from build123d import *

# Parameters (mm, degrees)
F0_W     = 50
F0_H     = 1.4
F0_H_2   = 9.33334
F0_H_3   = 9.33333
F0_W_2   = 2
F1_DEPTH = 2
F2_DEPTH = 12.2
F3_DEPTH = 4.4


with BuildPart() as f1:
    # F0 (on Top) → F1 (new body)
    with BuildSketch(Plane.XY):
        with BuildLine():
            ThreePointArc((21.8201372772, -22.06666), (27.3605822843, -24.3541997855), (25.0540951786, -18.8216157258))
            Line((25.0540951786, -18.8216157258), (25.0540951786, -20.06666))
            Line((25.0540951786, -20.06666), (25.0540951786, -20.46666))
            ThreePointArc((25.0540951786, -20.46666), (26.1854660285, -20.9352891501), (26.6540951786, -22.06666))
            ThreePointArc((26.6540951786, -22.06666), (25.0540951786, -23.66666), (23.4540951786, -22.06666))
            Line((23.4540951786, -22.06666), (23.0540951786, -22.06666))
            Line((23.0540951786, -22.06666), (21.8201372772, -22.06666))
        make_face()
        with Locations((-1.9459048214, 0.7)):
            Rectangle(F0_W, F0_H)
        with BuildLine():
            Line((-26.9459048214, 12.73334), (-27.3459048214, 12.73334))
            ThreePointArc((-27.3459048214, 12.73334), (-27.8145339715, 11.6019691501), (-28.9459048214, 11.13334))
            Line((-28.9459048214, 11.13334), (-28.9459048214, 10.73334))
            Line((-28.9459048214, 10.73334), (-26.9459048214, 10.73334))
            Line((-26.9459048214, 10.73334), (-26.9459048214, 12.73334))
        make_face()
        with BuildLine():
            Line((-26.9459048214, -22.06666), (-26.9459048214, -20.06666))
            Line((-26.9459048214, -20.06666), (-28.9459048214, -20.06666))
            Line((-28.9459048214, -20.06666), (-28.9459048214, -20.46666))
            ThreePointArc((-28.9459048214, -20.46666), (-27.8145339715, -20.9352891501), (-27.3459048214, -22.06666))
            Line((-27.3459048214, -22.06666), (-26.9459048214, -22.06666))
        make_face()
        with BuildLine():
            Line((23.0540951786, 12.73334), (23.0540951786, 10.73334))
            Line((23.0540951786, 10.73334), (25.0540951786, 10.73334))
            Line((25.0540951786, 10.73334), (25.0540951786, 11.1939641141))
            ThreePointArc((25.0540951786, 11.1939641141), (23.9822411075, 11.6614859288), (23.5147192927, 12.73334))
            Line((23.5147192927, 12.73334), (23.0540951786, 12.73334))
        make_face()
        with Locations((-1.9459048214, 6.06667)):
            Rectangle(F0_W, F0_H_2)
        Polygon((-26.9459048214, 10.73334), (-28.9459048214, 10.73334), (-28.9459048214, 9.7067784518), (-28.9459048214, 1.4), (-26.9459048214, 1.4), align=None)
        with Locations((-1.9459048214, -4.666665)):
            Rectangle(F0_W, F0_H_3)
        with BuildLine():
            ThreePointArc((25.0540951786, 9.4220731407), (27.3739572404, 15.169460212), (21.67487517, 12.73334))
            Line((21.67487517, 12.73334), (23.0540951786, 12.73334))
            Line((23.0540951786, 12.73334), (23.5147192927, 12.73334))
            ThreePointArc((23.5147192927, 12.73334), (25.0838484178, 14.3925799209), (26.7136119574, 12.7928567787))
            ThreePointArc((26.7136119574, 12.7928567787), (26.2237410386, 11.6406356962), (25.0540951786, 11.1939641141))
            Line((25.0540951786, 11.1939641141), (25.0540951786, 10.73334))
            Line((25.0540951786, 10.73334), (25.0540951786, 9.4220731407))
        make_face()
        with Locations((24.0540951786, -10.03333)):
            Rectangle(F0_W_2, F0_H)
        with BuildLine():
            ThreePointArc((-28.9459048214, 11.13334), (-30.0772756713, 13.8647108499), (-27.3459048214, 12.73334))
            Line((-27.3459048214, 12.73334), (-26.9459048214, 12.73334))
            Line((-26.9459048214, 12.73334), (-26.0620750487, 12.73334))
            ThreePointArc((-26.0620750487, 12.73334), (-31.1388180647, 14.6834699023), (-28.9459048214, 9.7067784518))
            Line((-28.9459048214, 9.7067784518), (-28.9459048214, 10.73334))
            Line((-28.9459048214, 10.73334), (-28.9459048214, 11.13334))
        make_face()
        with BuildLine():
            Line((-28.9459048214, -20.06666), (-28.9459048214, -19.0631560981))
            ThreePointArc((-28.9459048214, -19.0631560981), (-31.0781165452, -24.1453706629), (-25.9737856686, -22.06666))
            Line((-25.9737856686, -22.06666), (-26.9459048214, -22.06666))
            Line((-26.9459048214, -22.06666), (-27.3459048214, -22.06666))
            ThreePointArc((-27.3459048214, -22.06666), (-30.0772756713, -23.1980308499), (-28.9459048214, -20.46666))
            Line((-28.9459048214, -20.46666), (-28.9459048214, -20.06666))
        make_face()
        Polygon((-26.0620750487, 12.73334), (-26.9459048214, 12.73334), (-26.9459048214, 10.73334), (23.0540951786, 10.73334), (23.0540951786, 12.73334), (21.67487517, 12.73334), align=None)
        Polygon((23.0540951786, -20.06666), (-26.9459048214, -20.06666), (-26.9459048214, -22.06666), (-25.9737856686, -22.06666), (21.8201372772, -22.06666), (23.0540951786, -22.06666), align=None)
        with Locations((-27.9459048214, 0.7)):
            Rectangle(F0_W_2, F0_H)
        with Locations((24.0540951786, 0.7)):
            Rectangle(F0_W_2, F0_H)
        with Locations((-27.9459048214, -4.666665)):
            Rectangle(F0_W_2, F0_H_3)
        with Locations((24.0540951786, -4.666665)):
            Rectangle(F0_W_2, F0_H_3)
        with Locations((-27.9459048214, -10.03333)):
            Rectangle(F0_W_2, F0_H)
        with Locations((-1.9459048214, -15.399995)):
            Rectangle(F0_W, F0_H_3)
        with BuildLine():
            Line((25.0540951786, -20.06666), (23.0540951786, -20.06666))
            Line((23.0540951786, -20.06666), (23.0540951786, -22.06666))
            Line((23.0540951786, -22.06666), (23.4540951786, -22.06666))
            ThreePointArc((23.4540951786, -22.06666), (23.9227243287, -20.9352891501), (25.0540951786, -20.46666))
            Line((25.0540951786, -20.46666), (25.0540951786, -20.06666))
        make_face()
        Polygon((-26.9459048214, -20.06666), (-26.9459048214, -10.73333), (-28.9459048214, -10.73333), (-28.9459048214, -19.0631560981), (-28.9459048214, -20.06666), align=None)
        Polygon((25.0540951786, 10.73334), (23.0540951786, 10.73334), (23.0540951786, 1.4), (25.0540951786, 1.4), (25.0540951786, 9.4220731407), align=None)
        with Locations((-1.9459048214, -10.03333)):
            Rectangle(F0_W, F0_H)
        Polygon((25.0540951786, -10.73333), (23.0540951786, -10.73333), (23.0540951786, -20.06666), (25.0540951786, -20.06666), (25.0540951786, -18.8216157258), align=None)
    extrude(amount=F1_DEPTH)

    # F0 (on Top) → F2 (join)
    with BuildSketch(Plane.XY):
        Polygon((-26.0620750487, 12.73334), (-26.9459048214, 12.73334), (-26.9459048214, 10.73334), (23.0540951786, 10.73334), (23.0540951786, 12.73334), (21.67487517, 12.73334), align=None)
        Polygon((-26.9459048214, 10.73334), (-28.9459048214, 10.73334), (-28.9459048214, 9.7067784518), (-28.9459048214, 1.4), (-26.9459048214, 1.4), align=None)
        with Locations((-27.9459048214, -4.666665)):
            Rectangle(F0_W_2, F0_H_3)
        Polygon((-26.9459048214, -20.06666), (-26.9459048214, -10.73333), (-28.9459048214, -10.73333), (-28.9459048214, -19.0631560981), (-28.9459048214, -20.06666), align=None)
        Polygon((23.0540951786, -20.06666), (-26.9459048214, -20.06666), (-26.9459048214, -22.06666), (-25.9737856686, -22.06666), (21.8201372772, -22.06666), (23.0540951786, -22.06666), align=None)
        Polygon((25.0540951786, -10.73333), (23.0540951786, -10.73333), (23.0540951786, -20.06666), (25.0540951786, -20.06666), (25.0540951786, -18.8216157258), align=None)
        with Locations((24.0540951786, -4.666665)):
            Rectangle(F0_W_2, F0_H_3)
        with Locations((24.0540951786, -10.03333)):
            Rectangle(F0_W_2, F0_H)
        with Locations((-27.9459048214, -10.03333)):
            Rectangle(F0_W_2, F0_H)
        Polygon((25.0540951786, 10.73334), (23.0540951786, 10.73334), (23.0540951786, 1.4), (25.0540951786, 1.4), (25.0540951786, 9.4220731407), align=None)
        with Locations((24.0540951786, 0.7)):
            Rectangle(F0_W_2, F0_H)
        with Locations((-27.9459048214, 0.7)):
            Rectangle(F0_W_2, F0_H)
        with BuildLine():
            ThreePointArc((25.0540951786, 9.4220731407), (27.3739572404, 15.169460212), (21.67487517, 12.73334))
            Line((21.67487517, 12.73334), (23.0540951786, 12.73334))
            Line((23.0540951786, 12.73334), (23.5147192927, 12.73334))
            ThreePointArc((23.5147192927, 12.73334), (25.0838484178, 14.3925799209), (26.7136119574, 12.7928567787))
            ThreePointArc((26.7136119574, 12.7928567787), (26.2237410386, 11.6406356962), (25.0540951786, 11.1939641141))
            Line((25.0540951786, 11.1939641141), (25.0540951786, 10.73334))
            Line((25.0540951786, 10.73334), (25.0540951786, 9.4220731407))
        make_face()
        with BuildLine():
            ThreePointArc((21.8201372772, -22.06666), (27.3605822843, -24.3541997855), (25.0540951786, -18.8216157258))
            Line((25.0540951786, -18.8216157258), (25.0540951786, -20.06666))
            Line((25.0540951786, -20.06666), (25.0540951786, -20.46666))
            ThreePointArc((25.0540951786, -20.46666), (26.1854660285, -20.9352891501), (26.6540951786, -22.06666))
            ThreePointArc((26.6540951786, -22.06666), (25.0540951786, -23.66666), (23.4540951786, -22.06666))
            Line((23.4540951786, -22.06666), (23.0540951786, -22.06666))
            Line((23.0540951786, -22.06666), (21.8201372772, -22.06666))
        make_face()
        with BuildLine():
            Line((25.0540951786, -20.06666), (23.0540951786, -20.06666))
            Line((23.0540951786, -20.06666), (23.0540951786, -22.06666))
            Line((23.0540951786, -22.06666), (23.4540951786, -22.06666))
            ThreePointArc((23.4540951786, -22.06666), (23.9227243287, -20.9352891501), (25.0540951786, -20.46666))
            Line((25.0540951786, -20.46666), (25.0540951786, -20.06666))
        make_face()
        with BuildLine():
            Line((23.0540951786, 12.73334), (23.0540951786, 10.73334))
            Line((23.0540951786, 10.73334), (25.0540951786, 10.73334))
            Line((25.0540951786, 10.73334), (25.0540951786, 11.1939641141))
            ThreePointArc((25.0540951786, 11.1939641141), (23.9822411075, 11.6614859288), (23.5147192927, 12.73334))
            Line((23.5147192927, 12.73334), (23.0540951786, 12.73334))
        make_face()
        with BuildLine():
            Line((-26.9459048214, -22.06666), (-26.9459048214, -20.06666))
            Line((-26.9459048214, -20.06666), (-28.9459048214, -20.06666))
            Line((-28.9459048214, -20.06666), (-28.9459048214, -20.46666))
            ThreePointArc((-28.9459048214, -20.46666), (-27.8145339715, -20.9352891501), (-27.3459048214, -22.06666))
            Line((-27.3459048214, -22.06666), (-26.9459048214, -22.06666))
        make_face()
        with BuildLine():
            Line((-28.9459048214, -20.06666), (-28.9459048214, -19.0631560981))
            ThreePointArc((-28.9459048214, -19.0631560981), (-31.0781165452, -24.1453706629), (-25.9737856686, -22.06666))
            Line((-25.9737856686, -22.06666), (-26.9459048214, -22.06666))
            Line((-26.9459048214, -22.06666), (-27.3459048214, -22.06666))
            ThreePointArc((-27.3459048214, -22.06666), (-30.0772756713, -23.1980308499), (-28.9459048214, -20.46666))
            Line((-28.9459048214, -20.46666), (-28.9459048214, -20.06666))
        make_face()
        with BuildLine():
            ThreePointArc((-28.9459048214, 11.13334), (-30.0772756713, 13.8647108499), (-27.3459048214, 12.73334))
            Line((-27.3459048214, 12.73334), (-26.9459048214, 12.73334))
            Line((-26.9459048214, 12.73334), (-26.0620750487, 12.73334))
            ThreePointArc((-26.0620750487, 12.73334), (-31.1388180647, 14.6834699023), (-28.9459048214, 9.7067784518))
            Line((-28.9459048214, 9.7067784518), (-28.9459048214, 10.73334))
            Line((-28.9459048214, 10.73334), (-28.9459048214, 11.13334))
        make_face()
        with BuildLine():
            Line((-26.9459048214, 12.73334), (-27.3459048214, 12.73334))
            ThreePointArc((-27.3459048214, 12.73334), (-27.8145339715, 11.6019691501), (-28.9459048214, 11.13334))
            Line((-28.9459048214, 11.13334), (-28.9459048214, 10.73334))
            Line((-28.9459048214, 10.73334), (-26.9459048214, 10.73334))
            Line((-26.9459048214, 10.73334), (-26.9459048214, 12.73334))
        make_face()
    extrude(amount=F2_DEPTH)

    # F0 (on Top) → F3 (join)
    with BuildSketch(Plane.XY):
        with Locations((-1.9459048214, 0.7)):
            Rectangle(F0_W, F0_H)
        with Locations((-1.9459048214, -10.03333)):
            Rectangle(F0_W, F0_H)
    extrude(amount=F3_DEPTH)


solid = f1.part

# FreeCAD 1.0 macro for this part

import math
import FreeCAD as App
import Part
import Sketcher
from FreeCAD import Vector
Q = App.Units.Quantity

doc = App.newDocument("Part")
params = doc.addObject("Spreadsheet::Sheet", "Params")
for row, (alias, value) in enumerate([
    ("sketch1_radius", "1.6 mm"),
    ("pad1_length", "2 mm"),
    ("sketch2_radius", "1.6 mm"),
    ("sketch2_width", "50 mm"),
    ("sketch2_height", "30.8 mm"),
    ("pad2_length", "12.2 mm"),
    ("sketch3_width", "50 mm"),
    ("sketch3_height", "1.4 mm"),
    ("pad3_length", "4.4 mm"),
], start=1):
    params.set(f"A{row}", alias)
    params.set(f"B{row}", "=" + value)
    params.setAlias(f"B{row}", alias)

body = doc.addObject("PartDesign::Body", "Body")

# Sketch on XY plane
sketch1 = body.newObject("Sketcher::SketchObject", "Sketch")
sketch1.AttachmentSupport = (doc.getObject("XY_Plane"), [""])
sketch1.MapMode = "FlatFace"
sketch1.addGeometry(Part.ArcOfCircle(Part.Circle(Vector(25, 12.8, 0), Vector(0, 0, 1), 3.4), math.radians(-90), math.radians(181)), False)
sketch1.addGeometry(Part.LineSegment(Vector(21.7, 12.7, 0), Vector(-26.1, 12.7, 0)), False)
sketch1.addGeometry(Part.ArcOfCircle(Part.Circle(Vector(-29, 12.7, 0), Vector(0, 0, 1), 2.9), math.radians(2), math.radians(271)), False)
sketch1.addGeometry(Part.LineSegment(Vector(-28.9, 9.7, 0), Vector(-28.9, -19.1, 0)), False)
sketch1.addGeometry(Part.ArcOfCircle(Part.Circle(Vector(-29, -22, 0), Vector(0, 0, 1), 3), math.radians(90), math.radians(360)), False)
sketch1.addGeometry(Part.LineSegment(Vector(-26, -22.1, 0), Vector(21.8, -22.1, 0)), False)
sketch1.addGeometry(Part.ArcOfCircle(Part.Circle(Vector(25.1, -22.1, 0), Vector(0, 0, 1), 3.2), math.radians(-180), math.radians(90)), False)
sketch1.addGeometry(Part.LineSegment(Vector(25.1, -18.8, 0), Vector(25.1, 9.4, 0)), False)
sketch1.addGeometry(Part.ArcOfCircle(Part.Circle(Vector(-28.9, -22.1, 0), Vector(0, 0, 1), 1.6), math.radians(90), math.radians(360)), False)
sketch1.addGeometry(Part.ArcOfCircle(Part.Circle(Vector(-28.9, -22.1, 0), Vector(0, 0, 1), 1.6), math.radians(0), math.radians(90)), False)
sketch1.addGeometry(Part.ArcOfCircle(Part.Circle(Vector(25.1, -22.1, 0), Vector(0, 0, 1), 1.6), math.radians(0), math.radians(90)), False)
sketch1.addGeometry(Part.ArcOfCircle(Part.Circle(Vector(25.1, -22.1, 0), Vector(0, 0, 1), 1.6), math.radians(180), math.radians(360)), False)
sketch1.addGeometry(Part.ArcOfCircle(Part.Circle(Vector(25.1, -22.1, 0), Vector(0, 0, 1), 1.6), math.radians(90), math.radians(180)), False)
sketch1.addGeometry(Part.ArcOfCircle(Part.Circle(Vector(-28.9, 12.7, 0), Vector(0, 0, 1), 1.6), math.radians(-90), math.radians(0)), False)
sketch1.addGeometry(Part.ArcOfCircle(Part.Circle(Vector(-28.9, 12.7, 0), Vector(0, 0, 1), 1.6), math.radians(0), math.radians(270)), False)
sketch1.addGeometry(Part.ArcOfCircle(Part.Circle(Vector(25.1, 12.8, 0), Vector(0, 0, 1), 1.6), math.radians(0), math.radians(182)), False)
sketch1.addGeometry(Part.ArcOfCircle(Part.Circle(Vector(25.1, 12.8, 0), Vector(0, 0, 1), 1.6), math.radians(-92), math.radians(0)), False)
sketch1.addGeometry(Part.ArcOfCircle(Part.Circle(Vector(25.1, 12.8, 0), Vector(0, 0, 1), 1.6), math.radians(-178), math.radians(-92)), False)
sketch1.addConstraint(Sketcher.Constraint("Coincident", 0, 2, 1, 1))
sketch1.addConstraint(Sketcher.Constraint("Coincident", 1, 2, 2, 1))
sketch1.addConstraint(Sketcher.Constraint("Coincident", 2, 2, 3, 1))
sketch1.addConstraint(Sketcher.Constraint("Coincident", 3, 2, 4, 1))
sketch1.addConstraint(Sketcher.Constraint("Coincident", 4, 2, 5, 1))
sketch1.addConstraint(Sketcher.Constraint("Coincident", 5, 2, 6, 1))
sketch1.addConstraint(Sketcher.Constraint("Coincident", 6, 2, 7, 1))
sketch1.addConstraint(Sketcher.Constraint("Coincident", 7, 2, 0, 1))
sketch1.addConstraint(Sketcher.Constraint("Tangent", 8, 1, 9, 2))
sketch1.addConstraint(Sketcher.Constraint("Coincident", 9, 1, 8, 2))
sketch1.addConstraint(Sketcher.Constraint("Tangent", 10, 1, 11, 2))
sketch1.addConstraint(Sketcher.Constraint("Tangent", 11, 1, 12, 2))
sketch1.addConstraint(Sketcher.Constraint("Tangent", 12, 1, 10, 2))
sketch1.addConstraint(Sketcher.Constraint("Tangent", 13, 1, 14, 2))
sketch1.addConstraint(Sketcher.Constraint("Coincident", 14, 1, 13, 2))
sketch1.addConstraint(Sketcher.Constraint("Tangent", 15, 1, 16, 2))
sketch1.addConstraint(Sketcher.Constraint("Tangent", 16, 1, 17, 2))
sketch1.addConstraint(Sketcher.Constraint("Tangent", 17, 1, 15, 2))
sketch1.addConstraint(Sketcher.Constraint("Horizontal", 1))
sketch1.addConstraint(Sketcher.Constraint("Vertical", 3))
sketch1.addConstraint(Sketcher.Constraint("Horizontal", 5))
sketch1.addConstraint(Sketcher.Constraint("Vertical", 7))
sketch1.addConstraint(Sketcher.Constraint("Equal", 9, 10))
sketch1.addConstraint(Sketcher.Constraint("Equal", 12, 13))
sketch1.addConstraint(Sketcher.Constraint("Equal", 14, 15))
sketch1.addConstraint(Sketcher.Constraint("Horizontal", 9, 3, 10, 3))
sketch1.addConstraint(Sketcher.Constraint("Horizontal", 14, 3, 0, 2))
sketch1.addConstraint(Sketcher.Constraint("Horizontal", 12, 3, 4, 2))
sketch1.addConstraint(Sketcher.Constraint("Horizontal", 5, 2, 9, 1))
sketch1.addConstraint(Sketcher.Constraint("Horizontal", 9, 1, 10, 1))
sketch1.addConstraint(Sketcher.Constraint("Horizontal", 10, 1, 11, 1))
sketch1.addConstraint(Sketcher.Constraint("Horizontal", 1, 2, 14, 1))
sketch1.addConstraint(Sketcher.Constraint("Horizontal", 17, 3, 15, 1))
sketch1.addConstraint(Sketcher.Constraint("Horizontal", 14, 1, 17, 1))
sketch1.addConstraint(Sketcher.Constraint("Vertical", 9, 3, 13, 3))
sketch1.addConstraint(Sketcher.Constraint("Vertical", 14, 3, 2, 2))
sketch1.addConstraint(Sketcher.Constraint("Vertical", 12, 3, 6, 2))
sketch1.addConstraint(Sketcher.Constraint("Vertical", 3, 2, 8, 1))
sketch1.addConstraint(Sketcher.Constraint("Vertical", 7, 2, 12, 1))
sketch1.addConstraint(Sketcher.Constraint("Vertical", 8, 1, 13, 1))
sketch1.addConstraint(Sketcher.Constraint("Vertical", 12, 1, 16, 1))
sketch1.addConstraint(Sketcher.Constraint("Radius", 8, Q("1.6 mm")))
sketch1.addConstraint(Sketcher.Constraint("DistanceX", 8, 3, 10, 3, Q("54 mm")))
sketch1.addConstraint(Sketcher.Constraint("DistanceY", 8, 3, 13, 3, Q("34.8 mm")))
sketch1.addConstraint(Sketcher.Constraint("Radius", 0, Q("3.352771 mm")))
sketch1.addConstraint(Sketcher.Constraint("Radius", 6, Q("3.243221 mm")))
sketch1.addConstraint(Sketcher.Constraint("Radius", 2, Q("2.945453 mm")))
sketch1.addConstraint(Sketcher.Constraint("Radius", 4, Q("2.983613 mm")))
sketch1.addConstraint(Sketcher.Constraint("DistanceX", 1, 2, 1, 1, Q("47.73695 mm")))
sketch1.addConstraint(Sketcher.Constraint("DistanceY", 7, 1, 7, 2, Q("28.243689 mm")))
sketch1.addConstraint(Sketcher.Constraint("DistanceX", 5, 1, 5, 2, Q("47.793923 mm")))
sketch1.addConstraint(Sketcher.Constraint("DistanceY", 3, 2, 3, 1, Q("28.769935 mm")))
sketch1.addConstraint(Sketcher.Constraint("DistanceX", -1, 1, 0, 3, Q("25.02739 mm")))
sketch1.addConstraint(Sketcher.Constraint("DistanceY", -1, 1, 2, 3, Q("12.65161 mm")))
sketch1.addConstraint(Sketcher.Constraint("DistanceY", 8, 3, -1, 1, Q("22.06666 mm")))
sketch1.addConstraint(Sketcher.Constraint("DistanceX", -1, 1, 15, 3, Q("25.113612 mm")))
sketch1.addConstraint(Sketcher.Constraint("DistanceY", -1, 1, 2, 2, Q("9.706778 mm")))
sketch1.addConstraint(Sketcher.Constraint("DistanceX", -1, 1, 17, 1, Q("23.514719 mm")))
sketch1.addConstraint(Sketcher.Constraint("DistanceX", 2, 3, 4, 3, Q("0.049061 mm")))
sketch1.addConstraint(Sketcher.Constraint("DistanceY", 0, 3, 15, 3, Q("0.018119 mm")))
sketch1.setExpression("Constraints[41]", "Params.sketch1_radius")
pad1 = body.newObject("PartDesign::Pad", "Pad")
pad1.Profile = sketch1
pad1.setExpression("Length", "Params.pad1_length")

# Sketch on XY plane
sketch2 = body.newObject("Sketcher::SketchObject", "Sketch001")
sketch2.AttachmentSupport = (doc.getObject("XY_Plane"), [""])
sketch2.MapMode = "FlatFace"
sketch2.addGeometry(Part.LineSegment(Vector(21.7, 12.7, 0), Vector(-26.1, 12.7, 0)), False)
sketch2.addGeometry(Part.ArcOfCircle(Part.Circle(Vector(-29, 12.7, 0), Vector(0, 0, 1), 2.9), math.radians(2), math.radians(271)), False)
sketch2.addGeometry(Part.LineSegment(Vector(-28.9, 9.7, 0), Vector(-28.9, -19.1, 0)), False)
sketch2.addGeometry(Part.ArcOfCircle(Part.Circle(Vector(-29, -22, 0), Vector(0, 0, 1), 3), math.radians(90), math.radians(360)), False)
sketch2.addGeometry(Part.LineSegment(Vector(-26, -22.1, 0), Vector(21.8, -22.1, 0)), False)
sketch2.addGeometry(Part.ArcOfCircle(Part.Circle(Vector(25.1, -22.1, 0), Vector(0, 0, 1), 3.2), math.radians(-180), math.radians(90)), False)
sketch2.addGeometry(Part.LineSegment(Vector(25.1, -18.8, 0), Vector(25.1, 9.4, 0)), False)
sketch2.addGeometry(Part.ArcOfCircle(Part.Circle(Vector(25, 12.8, 0), Vector(0, 0, 1), 3.4), math.radians(-90), math.radians(181)), False)
sketch2.addGeometry(Part.ArcOfCircle(Part.Circle(Vector(-28.9, -22.1, 0), Vector(0, 0, 1), 1.6), math.radians(0), math.radians(90)), False)
sketch2.addGeometry(Part.ArcOfCircle(Part.Circle(Vector(-28.9, -22.1, 0), Vector(0, 0, 1), 1.6), math.radians(90), math.radians(360)), False)
sketch2.addGeometry(Part.LineSegment(Vector(-26.9, -20.1, 0), Vector(-26.9, 10.7, 0)), False)
sketch2.addGeometry(Part.LineSegment(Vector(-26.9, 10.7, 0), Vector(23.1, 10.7, 0)), False)
sketch2.addGeometry(Part.LineSegment(Vector(23.1, 10.7, 0), Vector(23.1, -20.1, 0)), False)
sketch2.addGeometry(Part.LineSegment(Vector(23.1, -20.1, 0), Vector(-26.9, -20.1, 0)), False)
sketch2.addGeometry(Part.ArcOfCircle(Part.Circle(Vector(25.1, -22.1, 0), Vector(0, 0, 1), 1.6), math.radians(180), math.radians(360)), False)
sketch2.addGeometry(Part.ArcOfCircle(Part.Circle(Vector(25.1, -22.1, 0), Vector(0, 0, 1), 1.6), math.radians(90), math.radians(180)), False)
sketch2.addGeometry(Part.ArcOfCircle(Part.Circle(Vector(25.1, -22.1, 0), Vector(0, 0, 1), 1.6), math.radians(0), math.radians(90)), False)
sketch2.addGeometry(Part.ArcOfCircle(Part.Circle(Vector(-28.9, 12.7, 0), Vector(0, 0, 1), 1.6), math.radians(0), math.radians(270)), False)
sketch2.addGeometry(Part.ArcOfCircle(Part.Circle(Vector(-28.9, 12.7, 0), Vector(0, 0, 1), 1.6), math.radians(-90), math.radians(0)), False)
sketch2.addGeometry(Part.ArcOfCircle(Part.Circle(Vector(25.1, 12.8, 0), Vector(0, 0, 1), 1.6), math.radians(-92), math.radians(0)), False)
sketch2.addGeometry(Part.ArcOfCircle(Part.Circle(Vector(25.1, 12.8, 0), Vector(0, 0, 1), 1.6), math.radians(-178), math.radians(-92)), False)
sketch2.addGeometry(Part.ArcOfCircle(Part.Circle(Vector(25.1, 12.8, 0), Vector(0, 0, 1), 1.6), math.radians(0), math.radians(182)), False)
sketch2.addConstraint(Sketcher.Constraint("Coincident", 0, 2, 1, 1))
sketch2.addConstraint(Sketcher.Constraint("Coincident", 1, 2, 2, 1))
sketch2.addConstraint(Sketcher.Constraint("Coincident", 2, 2, 3, 1))
sketch2.addConstraint(Sketcher.Constraint("Coincident", 3, 2, 4, 1))
sketch2.addConstraint(Sketcher.Constraint("Coincident", 4, 2, 5, 1))
sketch2.addConstraint(Sketcher.Constraint("Coincident", 5, 2, 6, 1))
sketch2.addConstraint(Sketcher.Constraint("Coincident", 6, 2, 7, 1))
sketch2.addConstraint(Sketcher.Constraint("Coincident", 7, 2, 0, 1))
sketch2.addConstraint(Sketcher.Constraint("Tangent", 8, 1, 9, 2))
sketch2.addConstraint(Sketcher.Constraint("Coincident", 9, 1, 8, 2))
sketch2.addConstraint(Sketcher.Constraint("Coincident", 10, 2, 11, 1))
sketch2.addConstraint(Sketcher.Constraint("Coincident", 11, 2, 12, 1))
sketch2.addConstraint(Sketcher.Constraint("Coincident", 12, 2, 13, 1))
sketch2.addConstraint(Sketcher.Constraint("Coincident", 13, 2, 10, 1))
sketch2.addConstraint(Sketcher.Constraint("Tangent", 14, 1, 15, 2))
sketch2.addConstraint(Sketcher.Constraint("Tangent", 15, 1, 16, 2))
sketch2.addConstraint(Sketcher.Constraint("Tangent", 16, 1, 14, 2))
sketch2.addConstraint(Sketcher.Constraint("Tangent", 17, 1, 18, 2))
sketch2.addConstraint(Sketcher.Constraint("Coincident", 18, 1, 17, 2))
sketch2.addConstraint(Sketcher.Constraint("Tangent", 19, 1, 20, 2))
sketch2.addConstraint(Sketcher.Constraint("Tangent", 20, 1, 21, 2))
sketch2.addConstraint(Sketcher.Constraint("Tangent", 21, 1, 19, 2))
sketch2.addConstraint(Sketcher.Constraint("Horizontal", 0))
sketch2.addConstraint(Sketcher.Constraint("Vertical", 2))
sketch2.addConstraint(Sketcher.Constraint("Horizontal", 4))
sketch2.addConstraint(Sketcher.Constraint("Vertical", 6))
sketch2.addConstraint(Sketcher.Constraint("Vertical", 10))
sketch2.addConstraint(Sketcher.Constraint("Horizontal", 11))
sketch2.addConstraint(Sketcher.Constraint("Vertical", 12))
sketch2.addConstraint(Sketcher.Constraint("Horizontal", 13))
sketch2.addConstraint(Sketcher.Constraint("Equal", 9, 14))
sketch2.addConstraint(Sketcher.Constraint("Equal", 16, 17))
sketch2.addConstraint(Sketcher.Constraint("Equal", 18, 19))
sketch2.addConstraint(Sketcher.Constraint("Horizontal", 9, 3, 14, 3))
sketch2.addConstraint(Sketcher.Constraint("Horizontal", 18, 3, 0, 2))
sketch2.addConstraint(Sketcher.Constraint("Horizontal", 16, 3, 3, 2))
sketch2.addConstraint(Sketcher.Constraint("Horizontal", 4, 2, 8, 1))
sketch2.addConstraint(Sketcher.Constraint("Horizontal", 8, 1, 14, 1))
sketch2.addConstraint(Sketcher.Constraint("Horizontal", 14, 1, 16, 1))
sketch2.addConstraint(Sketcher.Constraint("Horizontal", 7, 2, 17, 1))
sketch2.addConstraint(Sketcher.Constraint("Horizontal", 17, 1, 20, 1))
sketch2.addConstraint(Sketcher.Constraint("Horizontal", 20, 3, 21, 1))
sketch2.addConstraint(Sketcher.Constraint("Vertical", 9, 3, 17, 3))
sketch2.addConstraint(Sketcher.Constraint("Vertical", 18, 3, 1, 2))
sketch2.addConstraint(Sketcher.Constraint("Vertical", 16, 3, 5, 2))
sketch2.addConstraint(Sketcher.Constraint("Vertical", 2, 2, 9, 1))
sketch2.addConstraint(Sketcher.Constraint("Vertical", 6, 2, 15, 1))
sketch2.addConstraint(Sketcher.Constraint("Vertical", 9, 1, 18, 1))
sketch2.addConstraint(Sketcher.Constraint("Vertical", 15, 1, 19, 1))
sketch2.addConstraint(Sketcher.Constraint("Radius", 8, Q("1.6 mm")))
sketch2.addConstraint(Sketcher.Constraint("DistanceX", 11, 1, 11, 2, Q("50 mm")))
sketch2.addConstraint(Sketcher.Constraint("DistanceY", 10, 1, 10, 2, Q("30.8 mm")))
sketch2.addConstraint(Sketcher.Constraint("DistanceX", 8, 3, 14, 3, Q("54 mm")))
sketch2.addConstraint(Sketcher.Constraint("DistanceY", 10, 2, 0, 2, Q("2 mm")))
sketch2.addConstraint(Sketcher.Constraint("DistanceX", 1, 2, 10, 2, Q("2 mm")))
sketch2.addConstraint(Sketcher.Constraint("DistanceY", 4, 2, 12, 2, Q("2 mm")))
sketch2.addConstraint(Sketcher.Constraint("Radius", 5, Q("3.243221 mm")))
sketch2.addConstraint(Sketcher.Constraint("Radius", 7, Q("3.352771 mm")))
sketch2.addConstraint(Sketcher.Constraint("Radius", 1, Q("2.945453 mm")))
sketch2.addConstraint(Sketcher.Constraint("Radius", 3, Q("2.983613 mm")))
sketch2.addConstraint(Sketcher.Constraint("DistanceX", 0, 2, 0, 1, Q("47.73695 mm")))
sketch2.addConstraint(Sketcher.Constraint("DistanceY", 6, 1, 6, 2, Q("28.243689 mm")))
sketch2.addConstraint(Sketcher.Constraint("DistanceX", 4, 1, 4, 2, Q("47.793923 mm")))
sketch2.addConstraint(Sketcher.Constraint("DistanceY", 2, 2, 2, 1, Q("28.769935 mm")))
sketch2.addConstraint(Sketcher.Constraint("DistanceY", -1, 1, 1, 3, Q("12.65161 mm")))
sketch2.addConstraint(Sketcher.Constraint("DistanceX", -1, 1, 7, 3, Q("25.02739 mm")))
sketch2.addConstraint(Sketcher.Constraint("DistanceY", 8, 3, -1, 1, Q("22.06666 mm")))
sketch2.addConstraint(Sketcher.Constraint("DistanceX", -1, 1, 19, 3, Q("25.113612 mm")))
sketch2.addConstraint(Sketcher.Constraint("DistanceY", -1, 1, 1, 2, Q("9.706778 mm")))
sketch2.addConstraint(Sketcher.Constraint("DistanceX", -1, 1, 20, 1, Q("23.514719 mm")))
sketch2.addConstraint(Sketcher.Constraint("DistanceX", 1, 3, 3, 3, Q("0.049061 mm")))
sketch2.addConstraint(Sketcher.Constraint("DistanceY", 7, 3, 19, 3, Q("0.018119 mm")))
sketch2.setExpression("Constraints[49]", "Params.sketch2_radius")
sketch2.setExpression("Constraints[50]", "Params.sketch2_width")
sketch2.setExpression("Constraints[51]", "Params.sketch2_height")
pad2 = body.newObject("PartDesign::Pad", "Pad001")
pad2.Profile = sketch2
pad2.setExpression("Length", "Params.pad2_length")

# Sketch on XY plane
sketch3 = body.newObject("Sketcher::SketchObject", "Sketch002")
sketch3.AttachmentSupport = (doc.getObject("XY_Plane"), [""])
sketch3.MapMode = "FlatFace"
sketch3.addGeometry(Part.LineSegment(Vector(-26.9, 1.4, 0), Vector(-26.9, 0, 0)), False)
sketch3.addGeometry(Part.LineSegment(Vector(-26.9, 0, 0), Vector(23.1, 0, 0)), False)
sketch3.addGeometry(Part.LineSegment(Vector(23.1, 0, 0), Vector(23.1, 1.4, 0)), False)
sketch3.addGeometry(Part.LineSegment(Vector(23.1, 1.4, 0), Vector(-26.9, 1.4, 0)), False)
sketch3.addGeometry(Part.LineSegment(Vector(-26.9, -9.3, 0), Vector(-26.9, -10.7, 0)), False)
sketch3.addGeometry(Part.LineSegment(Vector(-26.9, -10.7, 0), Vector(23.1, -10.7, 0)), False)
sketch3.addGeometry(Part.LineSegment(Vector(23.1, -10.7, 0), Vector(23.1, -9.3, 0)), False)
sketch3.addGeometry(Part.LineSegment(Vector(23.1, -9.3, 0), Vector(-26.9, -9.3, 0)), False)
sketch3.addConstraint(Sketcher.Constraint("Coincident", 0, 2, 1, 1))
sketch3.addConstraint(Sketcher.Constraint("Coincident", 1, 2, 2, 1))
sketch3.addConstraint(Sketcher.Constraint("Coincident", 2, 2, 3, 1))
sketch3.addConstraint(Sketcher.Constraint("Coincident", 3, 2, 0, 1))
sketch3.addConstraint(Sketcher.Constraint("Coincident", 4, 2, 5, 1))
sketch3.addConstraint(Sketcher.Constraint("Coincident", 5, 2, 6, 1))
sketch3.addConstraint(Sketcher.Constraint("Coincident", 6, 2, 7, 1))
sketch3.addConstraint(Sketcher.Constraint("Coincident", 7, 2, 4, 1))
sketch3.addConstraint(Sketcher.Constraint("Vertical", 0))
sketch3.addConstraint(Sketcher.Constraint("Horizontal", 1))
sketch3.addConstraint(Sketcher.Constraint("Vertical", 2))
sketch3.addConstraint(Sketcher.Constraint("Horizontal", 3))
sketch3.addConstraint(Sketcher.Constraint("Vertical", 4))
sketch3.addConstraint(Sketcher.Constraint("Horizontal", 5))
sketch3.addConstraint(Sketcher.Constraint("Vertical", 6))
sketch3.addConstraint(Sketcher.Constraint("Horizontal", 7))
sketch3.addConstraint(Sketcher.Constraint("PointOnObject", 0, 2, -1))
sketch3.addConstraint(Sketcher.Constraint("Vertical", 3, 2, 4, 2))
sketch3.addConstraint(Sketcher.Constraint("Vertical", 2, 2, 5, 2))
sketch3.addConstraint(Sketcher.Constraint("Equal", 2, 4))
sketch3.addConstraint(Sketcher.Constraint("DistanceX", 1, 1, 1, 2, Q("50 mm")))
sketch3.addConstraint(Sketcher.Constraint("DistanceY", 0, 2, 0, 1, Q("1.4 mm")))
sketch3.addConstraint(Sketcher.Constraint("DistanceY", 4, 2, -1, 1, Q("10.73333 mm")))
sketch3.addConstraint(Sketcher.Constraint("DistanceX", 0, 2, -1, 1, Q("26.945905 mm")))
sketch3.setExpression("Constraints[20]", "Params.sketch3_width")
sketch3.setExpression("Constraints[21]", "Params.sketch3_height")
pad3 = body.newObject("PartDesign::Pad", "Pad002")
pad3.Profile = sketch3
pad3.setExpression("Length", "Params.pad3_length")

doc.recompute()
